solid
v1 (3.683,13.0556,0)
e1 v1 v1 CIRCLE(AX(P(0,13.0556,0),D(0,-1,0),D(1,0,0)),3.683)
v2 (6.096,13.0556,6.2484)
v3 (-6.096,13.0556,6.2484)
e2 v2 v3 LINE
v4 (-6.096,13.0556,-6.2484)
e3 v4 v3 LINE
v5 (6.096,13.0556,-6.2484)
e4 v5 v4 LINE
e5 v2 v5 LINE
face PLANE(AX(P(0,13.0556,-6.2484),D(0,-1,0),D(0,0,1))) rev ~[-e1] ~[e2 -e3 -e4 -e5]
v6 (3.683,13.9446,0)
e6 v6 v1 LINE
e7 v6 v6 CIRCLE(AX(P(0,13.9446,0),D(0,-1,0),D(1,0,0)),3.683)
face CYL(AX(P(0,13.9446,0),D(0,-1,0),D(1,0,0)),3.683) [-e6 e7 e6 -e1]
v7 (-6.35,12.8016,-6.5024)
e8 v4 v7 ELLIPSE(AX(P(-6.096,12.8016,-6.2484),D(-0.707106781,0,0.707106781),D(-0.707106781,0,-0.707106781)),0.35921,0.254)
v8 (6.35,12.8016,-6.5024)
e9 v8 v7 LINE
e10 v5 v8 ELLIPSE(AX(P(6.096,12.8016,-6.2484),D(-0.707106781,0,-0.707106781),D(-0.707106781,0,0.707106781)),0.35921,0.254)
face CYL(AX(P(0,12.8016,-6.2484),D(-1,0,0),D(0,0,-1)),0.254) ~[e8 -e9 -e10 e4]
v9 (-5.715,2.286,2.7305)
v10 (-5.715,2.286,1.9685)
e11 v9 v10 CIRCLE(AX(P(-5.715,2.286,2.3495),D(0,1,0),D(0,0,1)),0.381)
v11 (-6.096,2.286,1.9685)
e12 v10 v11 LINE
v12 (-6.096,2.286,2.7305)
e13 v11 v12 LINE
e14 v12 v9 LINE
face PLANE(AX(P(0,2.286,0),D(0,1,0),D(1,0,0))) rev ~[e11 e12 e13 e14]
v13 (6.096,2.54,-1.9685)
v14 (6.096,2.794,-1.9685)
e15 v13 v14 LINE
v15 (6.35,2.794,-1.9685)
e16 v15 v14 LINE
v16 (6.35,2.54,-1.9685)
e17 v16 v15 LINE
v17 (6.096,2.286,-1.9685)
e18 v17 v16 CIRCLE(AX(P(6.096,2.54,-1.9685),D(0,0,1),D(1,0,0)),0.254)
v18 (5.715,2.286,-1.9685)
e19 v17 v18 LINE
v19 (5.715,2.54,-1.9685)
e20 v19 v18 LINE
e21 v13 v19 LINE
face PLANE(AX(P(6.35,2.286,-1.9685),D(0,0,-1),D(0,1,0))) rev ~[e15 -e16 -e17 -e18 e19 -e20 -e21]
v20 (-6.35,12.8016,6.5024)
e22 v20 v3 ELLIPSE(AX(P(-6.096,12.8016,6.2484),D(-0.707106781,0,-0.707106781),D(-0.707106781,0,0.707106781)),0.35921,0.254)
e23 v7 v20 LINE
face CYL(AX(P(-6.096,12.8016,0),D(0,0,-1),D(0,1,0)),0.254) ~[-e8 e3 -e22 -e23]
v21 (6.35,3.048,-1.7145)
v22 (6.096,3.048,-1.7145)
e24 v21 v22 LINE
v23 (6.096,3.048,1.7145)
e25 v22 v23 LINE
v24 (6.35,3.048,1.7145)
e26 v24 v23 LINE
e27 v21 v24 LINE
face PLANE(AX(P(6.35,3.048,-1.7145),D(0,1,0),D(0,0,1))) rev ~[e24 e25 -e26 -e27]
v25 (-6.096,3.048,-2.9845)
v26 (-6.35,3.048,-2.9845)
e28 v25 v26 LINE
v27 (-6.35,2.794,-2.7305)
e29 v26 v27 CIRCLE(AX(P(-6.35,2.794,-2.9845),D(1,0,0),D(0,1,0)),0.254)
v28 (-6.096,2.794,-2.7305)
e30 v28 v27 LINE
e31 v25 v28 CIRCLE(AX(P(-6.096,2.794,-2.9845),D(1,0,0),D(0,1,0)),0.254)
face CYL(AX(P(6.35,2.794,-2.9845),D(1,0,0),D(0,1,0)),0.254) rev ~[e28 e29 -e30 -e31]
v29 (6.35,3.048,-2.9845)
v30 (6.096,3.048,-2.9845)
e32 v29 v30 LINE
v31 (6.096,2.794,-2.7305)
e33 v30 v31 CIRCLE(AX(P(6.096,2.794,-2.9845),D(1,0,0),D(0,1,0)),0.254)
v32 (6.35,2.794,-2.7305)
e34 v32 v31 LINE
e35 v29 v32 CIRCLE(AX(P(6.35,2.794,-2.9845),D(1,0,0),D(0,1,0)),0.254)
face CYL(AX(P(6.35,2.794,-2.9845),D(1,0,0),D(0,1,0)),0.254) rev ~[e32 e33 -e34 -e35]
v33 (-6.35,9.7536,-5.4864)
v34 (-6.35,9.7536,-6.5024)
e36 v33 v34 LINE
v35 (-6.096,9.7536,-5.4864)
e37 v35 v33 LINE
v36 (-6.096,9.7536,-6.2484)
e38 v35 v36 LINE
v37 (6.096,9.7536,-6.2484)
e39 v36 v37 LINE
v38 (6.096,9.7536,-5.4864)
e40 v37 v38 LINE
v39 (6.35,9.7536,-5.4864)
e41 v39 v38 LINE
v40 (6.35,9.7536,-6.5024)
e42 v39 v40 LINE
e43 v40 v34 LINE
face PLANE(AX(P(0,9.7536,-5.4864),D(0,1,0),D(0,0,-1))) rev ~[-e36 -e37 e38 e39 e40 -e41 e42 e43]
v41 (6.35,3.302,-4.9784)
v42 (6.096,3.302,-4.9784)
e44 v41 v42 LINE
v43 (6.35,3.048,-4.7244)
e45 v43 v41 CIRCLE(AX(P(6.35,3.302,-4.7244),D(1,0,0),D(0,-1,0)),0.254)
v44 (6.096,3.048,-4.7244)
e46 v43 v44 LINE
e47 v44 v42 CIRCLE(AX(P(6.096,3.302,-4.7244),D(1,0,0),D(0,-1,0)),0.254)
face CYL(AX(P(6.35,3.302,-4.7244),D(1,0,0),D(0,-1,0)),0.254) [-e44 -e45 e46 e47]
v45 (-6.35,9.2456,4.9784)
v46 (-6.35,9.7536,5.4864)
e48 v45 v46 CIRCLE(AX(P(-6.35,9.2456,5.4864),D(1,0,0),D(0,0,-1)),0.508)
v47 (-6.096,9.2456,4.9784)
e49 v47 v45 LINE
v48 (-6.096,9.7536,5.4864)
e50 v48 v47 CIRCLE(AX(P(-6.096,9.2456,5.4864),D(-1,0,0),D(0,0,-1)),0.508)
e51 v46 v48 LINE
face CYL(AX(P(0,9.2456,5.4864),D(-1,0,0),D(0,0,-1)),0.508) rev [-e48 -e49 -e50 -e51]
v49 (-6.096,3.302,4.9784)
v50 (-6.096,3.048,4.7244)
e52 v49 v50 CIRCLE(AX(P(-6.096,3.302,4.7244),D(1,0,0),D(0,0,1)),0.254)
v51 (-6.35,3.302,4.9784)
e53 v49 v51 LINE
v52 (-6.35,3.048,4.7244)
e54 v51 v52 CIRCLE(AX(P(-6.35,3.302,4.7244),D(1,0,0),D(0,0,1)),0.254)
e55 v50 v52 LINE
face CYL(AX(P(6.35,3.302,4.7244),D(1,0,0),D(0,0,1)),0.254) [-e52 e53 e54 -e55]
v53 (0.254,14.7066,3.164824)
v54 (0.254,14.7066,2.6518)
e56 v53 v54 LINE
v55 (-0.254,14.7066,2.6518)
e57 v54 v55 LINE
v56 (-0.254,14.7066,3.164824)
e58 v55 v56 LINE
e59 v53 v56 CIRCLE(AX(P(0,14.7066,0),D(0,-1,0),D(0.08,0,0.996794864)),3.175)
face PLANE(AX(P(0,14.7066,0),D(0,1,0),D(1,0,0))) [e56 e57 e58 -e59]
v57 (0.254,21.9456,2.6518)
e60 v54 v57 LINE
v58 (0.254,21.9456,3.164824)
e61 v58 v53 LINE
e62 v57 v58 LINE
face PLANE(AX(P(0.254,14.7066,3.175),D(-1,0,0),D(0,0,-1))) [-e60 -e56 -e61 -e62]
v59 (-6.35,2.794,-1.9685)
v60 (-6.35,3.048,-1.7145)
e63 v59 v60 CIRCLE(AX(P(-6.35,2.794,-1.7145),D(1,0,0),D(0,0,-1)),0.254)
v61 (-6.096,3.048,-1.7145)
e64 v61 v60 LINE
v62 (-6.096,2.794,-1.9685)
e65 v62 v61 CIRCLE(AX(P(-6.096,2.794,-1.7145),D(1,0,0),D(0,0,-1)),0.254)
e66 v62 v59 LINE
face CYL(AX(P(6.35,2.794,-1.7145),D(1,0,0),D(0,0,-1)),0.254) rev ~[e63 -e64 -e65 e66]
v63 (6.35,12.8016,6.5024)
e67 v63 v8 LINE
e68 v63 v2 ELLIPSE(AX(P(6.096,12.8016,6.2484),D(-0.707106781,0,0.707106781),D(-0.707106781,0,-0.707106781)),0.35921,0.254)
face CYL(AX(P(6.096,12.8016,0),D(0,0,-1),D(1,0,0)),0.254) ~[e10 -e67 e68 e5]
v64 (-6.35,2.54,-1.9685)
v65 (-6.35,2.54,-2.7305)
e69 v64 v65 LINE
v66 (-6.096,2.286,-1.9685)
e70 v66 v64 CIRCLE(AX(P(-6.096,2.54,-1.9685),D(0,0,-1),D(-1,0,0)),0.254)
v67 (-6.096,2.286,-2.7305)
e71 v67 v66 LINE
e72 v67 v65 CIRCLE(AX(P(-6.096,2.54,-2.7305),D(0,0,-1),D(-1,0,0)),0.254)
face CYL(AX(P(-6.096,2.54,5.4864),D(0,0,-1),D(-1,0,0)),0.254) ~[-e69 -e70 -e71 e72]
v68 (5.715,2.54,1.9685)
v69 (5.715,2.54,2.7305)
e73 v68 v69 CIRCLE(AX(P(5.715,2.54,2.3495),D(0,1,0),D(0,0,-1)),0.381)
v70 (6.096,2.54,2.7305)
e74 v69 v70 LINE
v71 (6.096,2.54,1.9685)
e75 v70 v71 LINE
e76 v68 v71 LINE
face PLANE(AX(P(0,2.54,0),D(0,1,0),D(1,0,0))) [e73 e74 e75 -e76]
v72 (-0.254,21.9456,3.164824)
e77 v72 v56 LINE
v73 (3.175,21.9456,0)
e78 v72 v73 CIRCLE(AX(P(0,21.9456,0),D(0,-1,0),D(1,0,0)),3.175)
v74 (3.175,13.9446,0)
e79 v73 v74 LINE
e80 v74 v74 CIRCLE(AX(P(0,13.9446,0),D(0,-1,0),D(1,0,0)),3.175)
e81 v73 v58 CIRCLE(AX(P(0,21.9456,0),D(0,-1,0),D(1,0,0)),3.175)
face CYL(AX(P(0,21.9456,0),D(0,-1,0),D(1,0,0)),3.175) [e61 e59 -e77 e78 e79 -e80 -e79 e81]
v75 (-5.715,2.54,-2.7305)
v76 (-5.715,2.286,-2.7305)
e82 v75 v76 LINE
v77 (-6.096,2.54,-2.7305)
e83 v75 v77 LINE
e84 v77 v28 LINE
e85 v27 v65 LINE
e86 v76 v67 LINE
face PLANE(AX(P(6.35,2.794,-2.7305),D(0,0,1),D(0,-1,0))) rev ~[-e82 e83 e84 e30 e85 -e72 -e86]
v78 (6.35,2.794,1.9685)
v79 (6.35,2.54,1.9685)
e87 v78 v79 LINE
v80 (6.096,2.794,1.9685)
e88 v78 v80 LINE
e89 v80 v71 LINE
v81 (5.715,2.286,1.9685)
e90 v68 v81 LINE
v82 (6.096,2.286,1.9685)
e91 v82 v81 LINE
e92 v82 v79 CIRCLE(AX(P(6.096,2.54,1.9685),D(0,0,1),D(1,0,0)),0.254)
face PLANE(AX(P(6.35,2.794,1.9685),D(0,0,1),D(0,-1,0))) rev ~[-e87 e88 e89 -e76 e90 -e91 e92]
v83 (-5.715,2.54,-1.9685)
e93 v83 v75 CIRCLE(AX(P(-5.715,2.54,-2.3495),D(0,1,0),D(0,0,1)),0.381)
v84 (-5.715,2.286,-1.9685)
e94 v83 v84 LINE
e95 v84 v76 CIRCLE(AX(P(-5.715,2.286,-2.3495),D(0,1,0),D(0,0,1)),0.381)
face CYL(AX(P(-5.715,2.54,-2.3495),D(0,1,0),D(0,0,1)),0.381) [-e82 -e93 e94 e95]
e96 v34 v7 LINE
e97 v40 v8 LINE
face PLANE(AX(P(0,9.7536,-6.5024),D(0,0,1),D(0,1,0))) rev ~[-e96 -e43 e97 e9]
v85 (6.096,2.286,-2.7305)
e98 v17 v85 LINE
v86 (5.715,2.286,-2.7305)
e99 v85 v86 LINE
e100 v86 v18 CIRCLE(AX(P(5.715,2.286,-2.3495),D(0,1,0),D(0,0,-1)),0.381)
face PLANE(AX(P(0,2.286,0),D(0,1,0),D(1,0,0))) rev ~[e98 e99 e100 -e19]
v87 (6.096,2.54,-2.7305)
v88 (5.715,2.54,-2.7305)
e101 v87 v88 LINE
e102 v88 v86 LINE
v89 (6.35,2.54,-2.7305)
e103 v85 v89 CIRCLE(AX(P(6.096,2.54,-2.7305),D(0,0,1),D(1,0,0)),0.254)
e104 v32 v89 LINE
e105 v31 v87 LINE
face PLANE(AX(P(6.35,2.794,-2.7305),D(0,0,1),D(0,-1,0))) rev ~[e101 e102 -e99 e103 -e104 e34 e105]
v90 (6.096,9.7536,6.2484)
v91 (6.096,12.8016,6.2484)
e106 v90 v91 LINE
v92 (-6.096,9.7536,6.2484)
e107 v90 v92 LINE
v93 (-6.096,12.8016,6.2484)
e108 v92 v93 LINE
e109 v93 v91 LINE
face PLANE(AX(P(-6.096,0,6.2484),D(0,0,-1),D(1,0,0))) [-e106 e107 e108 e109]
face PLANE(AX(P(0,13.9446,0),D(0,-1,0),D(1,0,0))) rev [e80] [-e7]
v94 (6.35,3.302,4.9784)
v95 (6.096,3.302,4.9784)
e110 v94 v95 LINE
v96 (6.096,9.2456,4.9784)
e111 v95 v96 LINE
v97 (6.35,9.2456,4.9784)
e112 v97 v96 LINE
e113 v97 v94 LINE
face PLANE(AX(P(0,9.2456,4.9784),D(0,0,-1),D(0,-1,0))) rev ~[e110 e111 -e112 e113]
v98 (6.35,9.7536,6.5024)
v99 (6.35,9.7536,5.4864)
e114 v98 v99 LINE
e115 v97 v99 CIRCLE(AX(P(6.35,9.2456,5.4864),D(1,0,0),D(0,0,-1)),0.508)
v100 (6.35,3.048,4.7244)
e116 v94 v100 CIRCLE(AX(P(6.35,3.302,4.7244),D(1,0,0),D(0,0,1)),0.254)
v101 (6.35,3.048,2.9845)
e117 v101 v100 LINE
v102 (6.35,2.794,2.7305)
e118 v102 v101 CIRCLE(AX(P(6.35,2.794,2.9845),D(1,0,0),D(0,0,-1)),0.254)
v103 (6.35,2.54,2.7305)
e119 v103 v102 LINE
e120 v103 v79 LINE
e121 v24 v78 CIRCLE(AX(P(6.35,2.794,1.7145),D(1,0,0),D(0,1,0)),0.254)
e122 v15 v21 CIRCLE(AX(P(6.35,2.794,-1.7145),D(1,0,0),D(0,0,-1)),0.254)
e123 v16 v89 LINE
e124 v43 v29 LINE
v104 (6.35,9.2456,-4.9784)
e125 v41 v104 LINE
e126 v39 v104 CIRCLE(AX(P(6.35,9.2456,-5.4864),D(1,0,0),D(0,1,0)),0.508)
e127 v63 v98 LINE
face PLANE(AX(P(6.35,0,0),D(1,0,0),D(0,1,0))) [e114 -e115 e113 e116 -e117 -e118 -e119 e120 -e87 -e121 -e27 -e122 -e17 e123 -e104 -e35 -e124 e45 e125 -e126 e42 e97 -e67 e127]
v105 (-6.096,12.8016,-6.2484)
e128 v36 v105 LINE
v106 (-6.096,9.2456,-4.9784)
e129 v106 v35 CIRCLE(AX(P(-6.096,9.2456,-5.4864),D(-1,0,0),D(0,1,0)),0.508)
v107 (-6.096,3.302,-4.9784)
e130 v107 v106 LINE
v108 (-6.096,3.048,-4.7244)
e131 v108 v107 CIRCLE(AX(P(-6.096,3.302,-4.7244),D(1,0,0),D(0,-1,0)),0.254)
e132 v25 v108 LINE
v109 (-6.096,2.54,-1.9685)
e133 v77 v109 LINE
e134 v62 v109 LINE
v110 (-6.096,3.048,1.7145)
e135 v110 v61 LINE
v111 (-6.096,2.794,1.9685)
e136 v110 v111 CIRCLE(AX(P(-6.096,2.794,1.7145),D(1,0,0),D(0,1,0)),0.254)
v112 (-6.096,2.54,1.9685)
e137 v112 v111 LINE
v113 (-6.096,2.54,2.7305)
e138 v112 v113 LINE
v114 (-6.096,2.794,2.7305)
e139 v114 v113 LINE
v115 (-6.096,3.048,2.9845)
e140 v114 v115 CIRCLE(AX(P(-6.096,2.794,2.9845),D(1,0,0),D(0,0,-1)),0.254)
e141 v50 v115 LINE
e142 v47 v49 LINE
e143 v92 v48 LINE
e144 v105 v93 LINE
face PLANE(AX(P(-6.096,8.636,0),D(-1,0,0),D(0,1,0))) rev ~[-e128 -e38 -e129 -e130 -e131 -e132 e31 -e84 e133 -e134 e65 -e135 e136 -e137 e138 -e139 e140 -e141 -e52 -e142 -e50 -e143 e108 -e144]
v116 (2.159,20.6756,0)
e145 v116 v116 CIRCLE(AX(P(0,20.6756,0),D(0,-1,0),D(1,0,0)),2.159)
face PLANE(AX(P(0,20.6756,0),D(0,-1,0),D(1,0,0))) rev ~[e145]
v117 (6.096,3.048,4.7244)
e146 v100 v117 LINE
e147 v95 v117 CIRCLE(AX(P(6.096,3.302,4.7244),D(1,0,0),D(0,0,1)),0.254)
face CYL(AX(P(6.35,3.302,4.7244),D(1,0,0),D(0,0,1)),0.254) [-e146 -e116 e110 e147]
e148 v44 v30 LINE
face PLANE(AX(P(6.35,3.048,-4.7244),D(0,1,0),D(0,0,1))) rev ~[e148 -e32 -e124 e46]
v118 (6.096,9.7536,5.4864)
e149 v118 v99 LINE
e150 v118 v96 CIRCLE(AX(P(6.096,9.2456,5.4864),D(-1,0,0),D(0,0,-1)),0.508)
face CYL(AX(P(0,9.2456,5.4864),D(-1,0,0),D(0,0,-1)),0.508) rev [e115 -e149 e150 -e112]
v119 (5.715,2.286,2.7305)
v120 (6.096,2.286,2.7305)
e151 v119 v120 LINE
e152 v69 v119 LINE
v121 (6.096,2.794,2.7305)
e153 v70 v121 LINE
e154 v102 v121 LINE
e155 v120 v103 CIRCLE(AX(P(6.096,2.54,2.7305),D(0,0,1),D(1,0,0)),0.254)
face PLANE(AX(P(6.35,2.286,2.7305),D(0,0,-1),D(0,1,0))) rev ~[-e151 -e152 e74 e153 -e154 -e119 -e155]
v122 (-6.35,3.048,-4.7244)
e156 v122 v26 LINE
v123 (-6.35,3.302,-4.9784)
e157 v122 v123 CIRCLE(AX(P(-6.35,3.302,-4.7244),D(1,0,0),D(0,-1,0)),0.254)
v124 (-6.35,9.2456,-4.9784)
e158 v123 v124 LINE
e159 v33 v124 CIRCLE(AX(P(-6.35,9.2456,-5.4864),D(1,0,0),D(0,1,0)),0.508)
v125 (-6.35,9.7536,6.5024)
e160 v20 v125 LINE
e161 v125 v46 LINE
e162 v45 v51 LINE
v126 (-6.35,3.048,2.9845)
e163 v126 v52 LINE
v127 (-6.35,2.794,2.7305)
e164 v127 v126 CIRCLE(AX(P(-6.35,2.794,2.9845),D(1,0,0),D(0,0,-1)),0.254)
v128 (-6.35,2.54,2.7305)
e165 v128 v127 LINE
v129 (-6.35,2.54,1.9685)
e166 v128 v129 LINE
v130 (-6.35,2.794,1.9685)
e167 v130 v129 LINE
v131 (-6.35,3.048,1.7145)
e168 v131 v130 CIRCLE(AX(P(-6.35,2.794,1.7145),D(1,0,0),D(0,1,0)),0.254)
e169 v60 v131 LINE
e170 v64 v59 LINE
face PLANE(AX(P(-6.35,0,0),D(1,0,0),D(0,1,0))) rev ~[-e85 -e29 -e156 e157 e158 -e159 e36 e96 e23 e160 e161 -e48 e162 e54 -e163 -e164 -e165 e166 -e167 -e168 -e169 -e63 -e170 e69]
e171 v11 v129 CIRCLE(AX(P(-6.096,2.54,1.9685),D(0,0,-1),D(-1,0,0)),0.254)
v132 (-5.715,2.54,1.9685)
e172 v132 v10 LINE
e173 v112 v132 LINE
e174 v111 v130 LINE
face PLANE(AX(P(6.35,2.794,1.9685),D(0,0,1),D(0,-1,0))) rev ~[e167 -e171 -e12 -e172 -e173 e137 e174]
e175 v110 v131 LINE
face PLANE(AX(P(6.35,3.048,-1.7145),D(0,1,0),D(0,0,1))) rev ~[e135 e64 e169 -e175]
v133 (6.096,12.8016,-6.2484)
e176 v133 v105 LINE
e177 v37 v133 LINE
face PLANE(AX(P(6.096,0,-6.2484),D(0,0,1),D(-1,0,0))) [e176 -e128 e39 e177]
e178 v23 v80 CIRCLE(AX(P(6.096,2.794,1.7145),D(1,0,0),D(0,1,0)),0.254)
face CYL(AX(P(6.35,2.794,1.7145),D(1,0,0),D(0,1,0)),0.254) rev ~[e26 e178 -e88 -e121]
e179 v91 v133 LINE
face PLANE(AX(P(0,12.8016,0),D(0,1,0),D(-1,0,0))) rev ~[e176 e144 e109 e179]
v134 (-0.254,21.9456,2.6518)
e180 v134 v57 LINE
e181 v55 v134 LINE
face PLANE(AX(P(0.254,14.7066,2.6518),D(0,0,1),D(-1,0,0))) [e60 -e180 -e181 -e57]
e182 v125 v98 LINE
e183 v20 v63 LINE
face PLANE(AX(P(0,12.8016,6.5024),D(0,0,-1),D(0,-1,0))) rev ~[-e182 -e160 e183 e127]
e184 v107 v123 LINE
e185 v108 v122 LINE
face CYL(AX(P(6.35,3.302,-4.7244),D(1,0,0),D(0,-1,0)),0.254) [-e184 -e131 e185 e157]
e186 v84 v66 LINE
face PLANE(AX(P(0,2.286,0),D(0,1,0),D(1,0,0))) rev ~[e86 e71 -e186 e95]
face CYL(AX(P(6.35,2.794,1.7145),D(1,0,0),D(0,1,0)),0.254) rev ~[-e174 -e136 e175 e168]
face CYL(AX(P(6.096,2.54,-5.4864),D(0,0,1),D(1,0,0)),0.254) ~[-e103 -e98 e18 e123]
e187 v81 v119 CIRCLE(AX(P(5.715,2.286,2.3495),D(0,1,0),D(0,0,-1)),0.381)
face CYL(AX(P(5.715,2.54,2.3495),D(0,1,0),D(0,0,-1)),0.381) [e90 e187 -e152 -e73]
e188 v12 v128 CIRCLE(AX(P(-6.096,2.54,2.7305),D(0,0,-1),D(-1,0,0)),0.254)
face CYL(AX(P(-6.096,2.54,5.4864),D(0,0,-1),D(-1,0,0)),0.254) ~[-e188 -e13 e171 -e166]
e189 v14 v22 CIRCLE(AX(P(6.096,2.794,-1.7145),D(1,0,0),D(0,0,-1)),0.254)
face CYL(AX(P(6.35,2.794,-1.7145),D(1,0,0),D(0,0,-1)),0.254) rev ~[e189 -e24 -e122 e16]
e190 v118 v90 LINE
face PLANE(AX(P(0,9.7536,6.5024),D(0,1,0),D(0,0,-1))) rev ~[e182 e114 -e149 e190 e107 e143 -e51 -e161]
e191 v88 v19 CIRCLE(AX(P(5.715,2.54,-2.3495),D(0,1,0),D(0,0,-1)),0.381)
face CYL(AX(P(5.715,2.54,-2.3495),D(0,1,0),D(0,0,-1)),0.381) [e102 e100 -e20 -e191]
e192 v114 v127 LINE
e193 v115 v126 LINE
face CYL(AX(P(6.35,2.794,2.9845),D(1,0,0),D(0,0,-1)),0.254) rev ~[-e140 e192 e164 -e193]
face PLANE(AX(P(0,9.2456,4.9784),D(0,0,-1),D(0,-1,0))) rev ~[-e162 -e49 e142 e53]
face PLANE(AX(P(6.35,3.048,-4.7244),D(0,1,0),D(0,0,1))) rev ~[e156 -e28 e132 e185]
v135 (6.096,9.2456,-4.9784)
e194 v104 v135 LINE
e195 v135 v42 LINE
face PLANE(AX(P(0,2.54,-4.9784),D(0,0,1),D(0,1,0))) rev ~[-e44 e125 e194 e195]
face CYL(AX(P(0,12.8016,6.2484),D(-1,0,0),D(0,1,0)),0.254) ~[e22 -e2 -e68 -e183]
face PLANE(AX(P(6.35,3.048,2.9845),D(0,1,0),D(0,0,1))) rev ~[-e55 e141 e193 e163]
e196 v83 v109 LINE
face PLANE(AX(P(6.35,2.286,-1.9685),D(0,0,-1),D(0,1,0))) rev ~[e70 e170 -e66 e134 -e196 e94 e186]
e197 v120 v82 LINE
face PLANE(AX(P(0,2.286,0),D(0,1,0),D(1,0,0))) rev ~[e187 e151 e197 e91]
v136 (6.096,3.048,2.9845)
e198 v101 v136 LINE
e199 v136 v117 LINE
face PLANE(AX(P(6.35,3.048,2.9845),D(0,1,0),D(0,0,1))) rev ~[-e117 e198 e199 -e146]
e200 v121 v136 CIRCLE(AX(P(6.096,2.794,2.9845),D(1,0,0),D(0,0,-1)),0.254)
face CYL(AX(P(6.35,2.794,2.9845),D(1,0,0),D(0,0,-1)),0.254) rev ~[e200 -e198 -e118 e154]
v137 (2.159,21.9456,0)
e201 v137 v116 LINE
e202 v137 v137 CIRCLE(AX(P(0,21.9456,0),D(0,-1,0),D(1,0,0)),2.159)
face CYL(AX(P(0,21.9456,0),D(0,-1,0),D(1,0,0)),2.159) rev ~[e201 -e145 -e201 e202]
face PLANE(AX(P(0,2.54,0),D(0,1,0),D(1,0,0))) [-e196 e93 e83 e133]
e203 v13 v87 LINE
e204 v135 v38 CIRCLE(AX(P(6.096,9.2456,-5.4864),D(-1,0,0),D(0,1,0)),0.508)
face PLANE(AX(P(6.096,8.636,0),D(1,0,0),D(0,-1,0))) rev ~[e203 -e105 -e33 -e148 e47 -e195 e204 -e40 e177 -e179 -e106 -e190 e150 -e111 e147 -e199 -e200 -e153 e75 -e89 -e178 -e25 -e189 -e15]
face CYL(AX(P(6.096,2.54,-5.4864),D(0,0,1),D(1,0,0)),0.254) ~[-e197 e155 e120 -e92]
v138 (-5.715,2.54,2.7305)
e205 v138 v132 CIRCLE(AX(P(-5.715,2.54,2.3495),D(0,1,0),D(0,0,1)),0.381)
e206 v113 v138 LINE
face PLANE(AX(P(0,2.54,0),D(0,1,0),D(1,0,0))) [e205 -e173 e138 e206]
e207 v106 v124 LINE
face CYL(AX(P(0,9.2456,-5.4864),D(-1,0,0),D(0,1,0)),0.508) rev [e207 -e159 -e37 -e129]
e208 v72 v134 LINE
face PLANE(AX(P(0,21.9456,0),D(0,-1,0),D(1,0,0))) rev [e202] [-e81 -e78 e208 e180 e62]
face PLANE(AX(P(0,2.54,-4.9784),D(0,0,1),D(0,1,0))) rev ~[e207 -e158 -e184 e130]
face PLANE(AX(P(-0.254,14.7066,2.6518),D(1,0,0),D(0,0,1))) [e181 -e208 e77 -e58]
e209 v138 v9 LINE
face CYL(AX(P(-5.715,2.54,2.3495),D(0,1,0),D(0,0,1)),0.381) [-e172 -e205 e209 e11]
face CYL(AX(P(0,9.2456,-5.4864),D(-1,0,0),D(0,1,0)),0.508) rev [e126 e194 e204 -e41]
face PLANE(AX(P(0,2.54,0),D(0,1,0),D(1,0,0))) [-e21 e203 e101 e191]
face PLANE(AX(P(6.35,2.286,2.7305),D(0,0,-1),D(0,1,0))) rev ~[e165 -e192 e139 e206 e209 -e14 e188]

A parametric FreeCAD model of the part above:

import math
import FreeCAD as App
import Part
import Sketcher
from FreeCAD import Vector
Q = App.Units.Quantity


def add_polygon(sketch, points):
    """Adds a closed chain of lines whose ends are joined by coincident constraints."""
    first, n = sketch.GeometryCount, len(points)
    for a, b in zip(points, points[1:] + points[:1]):
        sketch.addGeometry(Part.LineSegment(App.Vector(*a, 0), App.Vector(*b, 0)), False)
    for i in range(n):
        sketch.addConstraint(Sketcher.Constraint("Coincident", first + i, 2, first + (i + 1) % n, 1))

doc = App.newDocument("Part")
body = doc.addObject("PartDesign::Body", "Body")

# Sketch on YZ plane
sketch1 = body.newObject("Sketcher::SketchObject", "Sketch")
sketch1.AttachmentSupport = (doc.getObject("YZ_Plane"), [""])
sketch1.MapMode = "FlatFace"
sketch1.addGeometry(Part.ArcOfCircle(Part.Circle(Vector(12.8, 6.25, 0), Vector(0, 0, 1), 0.25), math.radians(0), math.radians(90)), False)
sketch1.addGeometry(Part.LineSegment(Vector(12.8, 6.5, 0), Vector(9.75, 6.5, 0)), False)
sketch1.addGeometry(Part.LineSegment(Vector(9.75, 6.5, 0), Vector(9.75, 5.49, 0)), False)
sketch1.addGeometry(Part.ArcOfCircle(Part.Circle(Vector(9.25, 5.49, 0), Vector(0, 0, 1), 0.51), math.radians(-90), math.radians(0)), False)
sketch1.addGeometry(Part.LineSegment(Vector(9.25, 4.98, 0), Vector(2.54, 4.98, 0)), False)
sketch1.addGeometry(Part.LineSegment(Vector(2.54, 4.98, 0), Vector(2.54, -4.98, 0)), False)
sketch1.addGeometry(Part.LineSegment(Vector(2.54, -4.98, 0), Vector(9.25, -4.98, 0)), False)
sketch1.addGeometry(Part.ArcOfCircle(Part.Circle(Vector(9.25, -5.49, 0), Vector(0, 0, 1), 0.51), math.radians(0), math.radians(90)), False)
sketch1.addGeometry(Part.LineSegment(Vector(9.75, -5.49, 0), Vector(9.75, -6.5, 0)), False)
sketch1.addGeometry(Part.LineSegment(Vector(9.75, -6.5, 0), Vector(12.8, -6.5, 0)), False)
sketch1.addGeometry(Part.ArcOfCircle(Part.Circle(Vector(12.8, -6.25, 0), Vector(0, 0, 1), 0.25), math.radians(-90), math.radians(0)), False)
sketch1.addGeometry(Part.LineSegment(Vector(13.06, -6.25, 0), Vector(13.06, 6.25, 0)), False)
sketch1.addConstraint(Sketcher.Constraint("Tangent", 0, 2, 1, 1))
sketch1.addConstraint(Sketcher.Constraint("Coincident", 1, 2, 2, 1))
sketch1.addConstraint(Sketcher.Constraint("Tangent", 2, 2, 3, 2))
sketch1.addConstraint(Sketcher.Constraint("Tangent", 3, 1, 4, 1))
sketch1.addConstraint(Sketcher.Constraint("Coincident", 4, 2, 5, 1))
sketch1.addConstraint(Sketcher.Constraint("Coincident", 5, 2, 6, 1))
sketch1.addConstraint(Sketcher.Constraint("Tangent", 6, 2, 7, 2))
sketch1.addConstraint(Sketcher.Constraint("Tangent", 7, 1, 8, 1))
sketch1.addConstraint(Sketcher.Constraint("Coincident", 8, 2, 9, 1))
sketch1.addConstraint(Sketcher.Constraint("Tangent", 9, 2, 10, 1))
sketch1.addConstraint(Sketcher.Constraint("Tangent", 10, 2, 11, 1))
sketch1.addConstraint(Sketcher.Constraint("Tangent", 11, 2, 0, 1))
sketch1.addConstraint(Sketcher.Constraint("Horizontal", 1))
sketch1.addConstraint(Sketcher.Constraint("Vertical", 2))
sketch1.addConstraint(Sketcher.Constraint("Horizontal", 4))
sketch1.addConstraint(Sketcher.Constraint("Vertical", 5))
sketch1.addConstraint(Sketcher.Constraint("Horizontal", 6))
sketch1.addConstraint(Sketcher.Constraint("Vertical", 8))
sketch1.addConstraint(Sketcher.Constraint("Horizontal", 9))
sketch1.addConstraint(Sketcher.Constraint("Vertical", 11))
sketch1.addConstraint(Sketcher.Constraint("Equal", 3, 7))
sketch1.addConstraint(Sketcher.Constraint("Equal", 0, 10))
sketch1.addConstraint(Sketcher.Constraint("Symmetric", 3, 3, 7, 3, -1))
sketch1.addConstraint(Sketcher.Constraint("Equal", 2, 8))
sketch1.addConstraint(Sketcher.Constraint("Radius", 0, Q("0.01 in")))
sketch1.addConstraint(Sketcher.Constraint("Radius", 3, Q("0.02 in")))
sketch1.addConstraint(Sketcher.Constraint("DistanceX", 1, 2, 1, 1, Q("0.12 in")))
sketch1.addConstraint(Sketcher.Constraint("DistanceY", 2, 2, 2, 1, Q("0.04 in")))
sketch1.addConstraint(Sketcher.Constraint("DistanceX", -1, 1, 4, 2, Q("0.1 in")))
sketch1.addConstraint(Sketcher.Constraint("DistanceX", 4, 2, 4, 1, Q("0.264 in")))
sketch1.addConstraint(Sketcher.Constraint("DistanceY", 5, 2, 5, 1, Q("0.392 in")))
pad1 = body.newObject("PartDesign::Pad", "Pad")
pad1.Profile = sketch1
pad1.Length = Q("0.5 in")
pad1.Midplane = True

# Sketch on XZ plane
sketch2 = body.newObject("Sketcher::SketchObject", "Sketch001")
sketch2.AttachmentSupport = (doc.getObject("XZ_Plane"), [""])
sketch2.MapMode = "FlatFace"
add_polygon(sketch2, [(-6, -6), (-6, 6), (6, 6), (6, -6)])  # lines 0-3
sketch2.addConstraint(Sketcher.Constraint("Vertical", 0))
sketch2.addConstraint(Sketcher.Constraint("Horizontal", 1))
sketch2.addConstraint(Sketcher.Constraint("Vertical", 2))
sketch2.addConstraint(Sketcher.Constraint("Horizontal", 3))
sketch2.addConstraint(Sketcher.Constraint("Symmetric", 0, 2, 2, 2, -1, 1))
sketch2.addConstraint(Sketcher.Constraint("DistanceX", 1, 1, 1, 2, Q("0.48 in")))
sketch2.addConstraint(Sketcher.Constraint("DistanceY", 0, 1, 0, 2, Q("0.492 in")))
pocket1 = body.newObject("PartDesign::Pocket", "Pocket")
pocket1.Profile = sketch2
pocket1.Length = Q("0.504 in")

# Sketch on XY plane
sketch3 = body.newObject("Sketcher::SketchObject", "Sketch002")
sketch3.AttachmentSupport = (doc.getObject("XY_Plane"), [""])
sketch3.MapMode = "FlatFace"
sketch3.addGeometry(Part.LineSegment(Vector(6.35, 15.24, 0), Vector(-6.35, 15.24, 0)), False)
sketch3.addGeometry(Part.LineSegment(Vector(-6.35, 15.24, 0), Vector(-6.35, 12.8, 0)), False)
sketch3.addGeometry(Part.ArcOfCircle(Part.Circle(Vector(-6.1, 12.8, 0), Vector(0, 0, 1), 0.25), math.radians(90), math.radians(180)), False)
sketch3.addGeometry(Part.LineSegment(Vector(-6.1, 13.06, 0), Vector(6.1, 13.06, 0)), False)
sketch3.addGeometry(Part.ArcOfCircle(Part.Circle(Vector(6.1, 12.8, 0), Vector(0, 0, 1), 0.25), math.radians(0), math.radians(90)), False)
sketch3.addGeometry(Part.LineSegment(Vector(6.35, 12.8, 0), Vector(6.35, 15.24, 0)), False)
sketch3.addConstraint(Sketcher.Constraint("Coincident", 0, 2, 1, 1))
sketch3.addConstraint(Sketcher.Constraint("Tangent", 1, 2, 2, 2))
sketch3.addConstraint(Sketcher.Constraint("Tangent", 2, 1, 3, 1))
sketch3.addConstraint(Sketcher.Constraint("Tangent", 3, 2, 4, 2))
sketch3.addConstraint(Sketcher.Constraint("Tangent", 4, 1, 5, 1))
sketch3.addConstraint(Sketcher.Constraint("Coincident", 5, 2, 0, 1))
sketch3.addConstraint(Sketcher.Constraint("Horizontal", 0))
sketch3.addConstraint(Sketcher.Constraint("Vertical", 1))
sketch3.addConstraint(Sketcher.Constraint("Horizontal", 3))
sketch3.addConstraint(Sketcher.Constraint("Vertical", 5))
sketch3.addConstraint(Sketcher.Constraint("Equal", 2, 4))
sketch3.addConstraint(Sketcher.Constraint("Radius", 2, Q("0.01 in")))
sketch3.addConstraint(Sketcher.Constraint("DistanceX", 0, 2, 0, 1, Q("0.5 in")))
sketch3.addConstraint(Sketcher.Constraint("DistanceY", -1, 1, 0, 2, Q("0.6 in")))
sketch3.addConstraint(Sketcher.Constraint("DistanceY", 1, 2, 1, 1, Q("0.096 in")))
sketch3.addConstraint(Sketcher.Constraint("DistanceX", 2, 3, -1, 1, Q("0.24 in")))
pocket2 = body.newObject("PartDesign::Pocket", "Pocket001")
pocket2.Profile = sketch3
pocket2.Length = Q("1.008 in")
pocket2.Midplane = True

# Sketch on XZ plane
sketch4 = body.newObject("Sketcher::SketchObject", "Sketch003")
sketch4.AttachmentSupport = (doc.getObject("XZ_Plane"), [""])
sketch4.MapMode = "FlatFace"
sketch4.AttachmentOffset = App.Placement(Vector(0, 0, -0.1 * 25.4), App.Rotation())
add_polygon(sketch4, [(-6.1, 5.49), (-6.1, -5.49), (-6.35, -5.49), (-6.35, 5.49)])  # lines 0-3
sketch4.addGeometry(Part.LineSegment(Vector(-6.1, -5.49, 0), Vector(-6.1, 5.49, 0)), True)  # axis
sketch4.addConstraint(Sketcher.Constraint("Vertical", 0))
sketch4.addConstraint(Sketcher.Constraint("Horizontal", 1))
sketch4.addConstraint(Sketcher.Constraint("Vertical", 2))
sketch4.addConstraint(Sketcher.Constraint("Horizontal", 3))
sketch4.addConstraint(Sketcher.Constraint("Vertical", 4))
sketch4.addConstraint(Sketcher.Constraint("Coincident", 4, 1, 0, 2))
sketch4.addConstraint(Sketcher.Constraint("Horizontal", 2, 2, 4, 2))
sketch4.addConstraint(Sketcher.Constraint("DistanceX", 1, 2, 1, 1, Q("0.01 in")))
sketch4.addConstraint(Sketcher.Constraint("DistanceY", 0, 2, 0, 1, Q("0.432 in")))
sketch4.addConstraint(Sketcher.Constraint("DistanceX", 0, 2, -1, 1, Q("0.24 in")))
sketch4.addConstraint(Sketcher.Constraint("DistanceY", 0, 2, -1, 1, Q("0.216 in")))
revolution = body.newObject("PartDesign::Revolution", "Revolution")
revolution.Profile = sketch4
revolution.ReferenceAxis = (sketch4, ["Axis0"])
revolution.Angle = 90

# Sketch on XZ plane
sketch5 = body.newObject("Sketcher::SketchObject", "Sketch004")
sketch5.AttachmentSupport = (doc.getObject("XZ_Plane"), [""])
sketch5.MapMode = "FlatFace"
sketch5.AttachmentOffset = App.Placement(Vector(0, 0, -0.1 * 25.4), App.Rotation())
add_polygon(sketch5, [(6.1, -5.49), (6.1, 5.49), (6.35, 5.49), (6.35, -5.49)])  # lines 0-3
sketch5.addGeometry(Part.LineSegment(Vector(6.1, 5.49, 0), Vector(6.1, -5.49, 0)), True)  # axis
sketch5.addConstraint(Sketcher.Constraint("Vertical", 0))
sketch5.addConstraint(Sketcher.Constraint("Horizontal", 1))
sketch5.addConstraint(Sketcher.Constraint("Vertical", 2))
sketch5.addConstraint(Sketcher.Constraint("Horizontal", 3))
sketch5.addConstraint(Sketcher.Constraint("Vertical", 4))
sketch5.addConstraint(Sketcher.Constraint("Coincident", 4, 1, 0, 2))
sketch5.addConstraint(Sketcher.Constraint("Horizontal", 2, 2, 4, 2))
sketch5.addConstraint(Sketcher.Constraint("DistanceX", 1, 1, 1, 2, Q("0.01 in")))
sketch5.addConstraint(Sketcher.Constraint("DistanceY", 0, 1, 0, 2, Q("0.432 in")))
sketch5.addConstraint(Sketcher.Constraint("DistanceX", -1, 1, 0, 2, Q("0.24 in")))
sketch5.addConstraint(Sketcher.Constraint("DistanceY", -1, 1, 0, 2, Q("0.216 in")))
revolution2 = body.newObject("PartDesign::Revolution", "Revolution001")
revolution2.Profile = sketch5
revolution2.ReferenceAxis = (sketch5, ["Axis0"])
revolution2.Angle = 90

# Sketch on XZ plane
sketch6 = body.newObject("Sketcher::SketchObject", "Sketch005")
sketch6.AttachmentSupport = (doc.getObject("XZ_Plane"), [""])
sketch6.MapMode = "FlatFace"
sketch6.AttachmentOffset = App.Placement(Vector(0, 0, -0.1 * 25.4), App.Rotation())
sketch6.addGeometry(Part.LineSegment(Vector(-5.71, -2.73, 0), Vector(-6.1, -2.73, 0)), False)
sketch6.addGeometry(Part.LineSegment(Vector(-6.1, -2.73, 0), Vector(-6.1, 2.73, 0)), False)
sketch6.addGeometry(Part.LineSegment(Vector(-6.1, 2.73, 0), Vector(-5.71, 2.73, 0)), False)
sketch6.addGeometry(Part.ArcOfCircle(Part.Circle(Vector(-5.71, 2.35, 0), Vector(0, 0, 1), 0.38), math.radians(-90), math.radians(90)), False)
sketch6.addGeometry(Part.LineSegment(Vector(-5.71, 1.97, 0), Vector(-5.71, -1.97, 0)), False)
sketch6.addGeometry(Part.ArcOfCircle(Part.Circle(Vector(-5.71, -2.35, 0), Vector(0, 0, 1), 0.38), math.radians(-90), math.radians(90)), False)
sketch6.addConstraint(Sketcher.Constraint("Coincident", 0, 2, 1, 1))
sketch6.addConstraint(Sketcher.Constraint("Coincident", 1, 2, 2, 1))
sketch6.addConstraint(Sketcher.Constraint("Tangent", 2, 2, 3, 2))
sketch6.addConstraint(Sketcher.Constraint("Coincident", 3, 1, 4, 1))
sketch6.addConstraint(Sketcher.Constraint("Coincident", 4, 2, 5, 2))
sketch6.addConstraint(Sketcher.Constraint("Tangent", 5, 1, 0, 1))
sketch6.addConstraint(Sketcher.Constraint("Horizontal", 0))
sketch6.addConstraint(Sketcher.Constraint("Vertical", 1))
sketch6.addConstraint(Sketcher.Constraint("Horizontal", 2))
sketch6.addConstraint(Sketcher.Constraint("Vertical", 4))
sketch6.addConstraint(Sketcher.Constraint("Equal", 3, 5))
sketch6.addConstraint(Sketcher.Constraint("Symmetric", 3, 3, 5, 3, -1))
sketch6.addConstraint(Sketcher.Constraint("Vertical", 2, 2, 3, 1))
sketch6.addConstraint(Sketcher.Constraint("Radius", 3, Q("0.015 in")))
sketch6.addConstraint(Sketcher.Constraint("DistanceY", 0, 2, 3, 3, Q("0.2 in")))
sketch6.addConstraint(Sketcher.Constraint("DistanceX", 0, 2, 0, 1, Q("0.015 in")))
sketch6.addConstraint(Sketcher.Constraint("DistanceX", 0, 2, -1, 1, Q("0.24 in")))
pad2 = body.newObject("PartDesign::Pad", "Pad001")
pad2.Profile = sketch6
pad2.Length = Q("0.01 in")

# Sketch on XZ plane
sketch7 = body.newObject("Sketcher::SketchObject", "Sketch006")
sketch7.AttachmentSupport = (doc.getObject("XZ_Plane"), [""])
sketch7.MapMode = "FlatFace"
sketch7.AttachmentOffset = App.Placement(Vector(0, 0, -0.1 * 25.4), App.Rotation())
sketch7.addGeometry(Part.LineSegment(Vector(6.1, -2.73, 0), Vector(5.71, -2.73, 0)), False)
sketch7.addGeometry(Part.ArcOfCircle(Part.Circle(Vector(5.71, -2.35, 0), Vector(0, 0, 1), 0.38), math.radians(90), math.radians(270)), False)
sketch7.addGeometry(Part.LineSegment(Vector(5.71, -1.97, 0), Vector(5.71, 1.97, 0)), False)
sketch7.addGeometry(Part.ArcOfCircle(Part.Circle(Vector(5.71, 2.35, 0), Vector(0, 0, 1), 0.38), math.radians(90), math.radians(270)), False)
sketch7.addGeometry(Part.LineSegment(Vector(5.71, 2.73, 0), Vector(6.1, 2.73, 0)), False)
sketch7.addGeometry(Part.LineSegment(Vector(6.1, 2.73, 0), Vector(6.1, -2.73, 0)), False)
sketch7.addConstraint(Sketcher.Constraint("Tangent", 0, 2, 1, 2))
sketch7.addConstraint(Sketcher.Constraint("Coincident", 1, 1, 2, 1))
sketch7.addConstraint(Sketcher.Constraint("Coincident", 2, 2, 3, 2))
sketch7.addConstraint(Sketcher.Constraint("Tangent", 3, 1, 4, 1))
sketch7.addConstraint(Sketcher.Constraint("Coincident", 4, 2, 5, 1))
sketch7.addConstraint(Sketcher.Constraint("Coincident", 5, 2, 0, 1))
sketch7.addConstraint(Sketcher.Constraint("Horizontal", 0))
sketch7.addConstraint(Sketcher.Constraint("Vertical", 2))
sketch7.addConstraint(Sketcher.Constraint("Horizontal", 4))
sketch7.addConstraint(Sketcher.Constraint("Vertical", 5))
sketch7.addConstraint(Sketcher.Constraint("Equal", 1, 3))
sketch7.addConstraint(Sketcher.Constraint("Symmetric", 1, 3, 3, 3, -1))
sketch7.addConstraint(Sketcher.Constraint("Vertical", 0, 2, 1, 1))
sketch7.addConstraint(Sketcher.Constraint("Radius", 1, Q("0.015 in")))
sketch7.addConstraint(Sketcher.Constraint("DistanceY", 0, 2, 3, 3, Q("0.2 in")))
sketch7.addConstraint(Sketcher.Constraint("DistanceX", 0, 2, 0, 1, Q("0.015 in")))
sketch7.addConstraint(Sketcher.Constraint("DistanceX", -1, 1, 4, 2, Q("0.24 in")))
pad3 = body.newObject("PartDesign::Pad", "Pad002")
pad3.Profile = sketch7
pad3.Length = Q("0.01 in")

# Sketch on YZ plane
sketch8 = body.newObject("Sketcher::SketchObject", "Sketch007")
sketch8.AttachmentSupport = (doc.getObject("YZ_Plane"), [""])
sketch8.MapMode = "FlatFace"
sketch8.AttachmentOffset = App.Placement(Vector(0, 0, 0.25 * 25.4), App.Rotation())
sketch8.addGeometry(Part.LineSegment(Vector(3.3, 7.19, 0), Vector(0, 7.19, 0)), False)
sketch8.addGeometry(Part.LineSegment(Vector(0, 7.19, 0), Vector(0, -7.75, 0)), False)
sketch8.addGeometry(Part.LineSegment(Vector(0, -7.75, 0), Vector(3.3, -7.75, 0)), False)
sketch8.addGeometry(Part.LineSegment(Vector(3.3, -7.75, 0), Vector(3.3, -4.98, 0)), False)
sketch8.addGeometry(Part.ArcOfCircle(Part.Circle(Vector(3.3, -4.72, 0), Vector(0, 0, 1), 0.25), math.radians(180), math.radians(270)), False)
sketch8.addGeometry(Part.LineSegment(Vector(3.05, -4.72, 0), Vector(3.05, -2.98, 0)), False)
sketch8.addGeometry(Part.ArcOfCircle(Part.Circle(Vector(2.79, -2.98, 0), Vector(0, 0, 1), 0.25), math.radians(0), math.radians(90)), False)
sketch8.addGeometry(Part.LineSegment(Vector(2.79, -2.73, 0), Vector(2.29, -2.73, 0)), False)
sketch8.addGeometry(Part.LineSegment(Vector(2.29, -2.73, 0), Vector(2.29, -1.97, 0)), False)
sketch8.addGeometry(Part.LineSegment(Vector(2.29, -1.97, 0), Vector(2.79, -1.97, 0)), False)
sketch8.addGeometry(Part.ArcOfCircle(Part.Circle(Vector(2.79, -1.71, 0), Vector(0, 0, 1), 0.25), math.radians(-90), math.radians(0)), False)
sketch8.addGeometry(Part.LineSegment(Vector(3.05, -1.71, 0), Vector(3.05, 1.71, 0)), False)
sketch8.addGeometry(Part.ArcOfCircle(Part.Circle(Vector(2.79, 1.71, 0), Vector(0, 0, 1), 0.25), math.radians(0), math.radians(90)), False)
sketch8.addGeometry(Part.LineSegment(Vector(2.79, 1.97, 0), Vector(2.29, 1.97, 0)), False)
sketch8.addGeometry(Part.LineSegment(Vector(2.29, 1.97, 0), Vector(2.29, 2.73, 0)), False)
sketch8.addGeometry(Part.LineSegment(Vector(2.29, 2.73, 0), Vector(2.79, 2.73, 0)), False)
sketch8.addGeometry(Part.ArcOfCircle(Part.Circle(Vector(2.79, 2.98, 0), Vector(0, 0, 1), 0.25), math.radians(-90), math.radians(0)), False)
sketch8.addGeometry(Part.LineSegment(Vector(3.05, 2.98, 0), Vector(3.05, 4.72, 0)), False)
sketch8.addGeometry(Part.ArcOfCircle(Part.Circle(Vector(3.3, 4.72, 0), Vector(0, 0, 1), 0.25), math.radians(90), math.radians(180)), False)
sketch8.addGeometry(Part.LineSegment(Vector(3.3, 4.98, 0), Vector(3.3, 7.19, 0)), False)
sketch8.addConstraint(Sketcher.Constraint("Coincident", 0, 2, 1, 1))
sketch8.addConstraint(Sketcher.Constraint("Coincident", 1, 2, 2, 1))
sketch8.addConstraint(Sketcher.Constraint("Coincident", 2, 2, 3, 1))
sketch8.addConstraint(Sketcher.Constraint("Coincident", 3, 2, 4, 2))
sketch8.addConstraint(Sketcher.Constraint("Tangent", 4, 1, 5, 1))
sketch8.addConstraint(Sketcher.Constraint("Tangent", 5, 2, 6, 1))
sketch8.addConstraint(Sketcher.Constraint("Tangent", 6, 2, 7, 1))
sketch8.addConstraint(Sketcher.Constraint("Coincident", 7, 2, 8, 1))
sketch8.addConstraint(Sketcher.Constraint("Coincident", 8, 2, 9, 1))
sketch8.addConstraint(Sketcher.Constraint("Tangent", 9, 2, 10, 1))
sketch8.addConstraint(Sketcher.Constraint("Tangent", 10, 2, 11, 1))
sketch8.addConstraint(Sketcher.Constraint("Tangent", 11, 2, 12, 1))
sketch8.addConstraint(Sketcher.Constraint("Tangent", 12, 2, 13, 1))
sketch8.addConstraint(Sketcher.Constraint("Coincident", 13, 2, 14, 1))
sketch8.addConstraint(Sketcher.Constraint("Coincident", 14, 2, 15, 1))
sketch8.addConstraint(Sketcher.Constraint("Tangent", 15, 2, 16, 1))
sketch8.addConstraint(Sketcher.Constraint("Tangent", 16, 2, 17, 1))
sketch8.addConstraint(Sketcher.Constraint("Tangent", 17, 2, 18, 2))
sketch8.addConstraint(Sketcher.Constraint("Coincident", 18, 1, 19, 1))
sketch8.addConstraint(Sketcher.Constraint("Coincident", 19, 2, 0, 1))
sketch8.addConstraint(Sketcher.Constraint("Horizontal", 0))
sketch8.addConstraint(Sketcher.Constraint("Vertical", 1))
sketch8.addConstraint(Sketcher.Constraint("Horizontal", 2))
sketch8.addConstraint(Sketcher.Constraint("Vertical", 3))
sketch8.addConstraint(Sketcher.Constraint("Vertical", 5))
sketch8.addConstraint(Sketcher.Constraint("Horizontal", 7))
sketch8.addConstraint(Sketcher.Constraint("Vertical", 8))
sketch8.addConstraint(Sketcher.Constraint("Horizontal", 9))
sketch8.addConstraint(Sketcher.Constraint("Vertical", 11))
sketch8.addConstraint(Sketcher.Constraint("Horizontal", 13))
sketch8.addConstraint(Sketcher.Constraint("Vertical", 14))
sketch8.addConstraint(Sketcher.Constraint("Horizontal", 15))
sketch8.addConstraint(Sketcher.Constraint("Vertical", 17))
sketch8.addConstraint(Sketcher.Constraint("Vertical", 19))
sketch8.addConstraint(Sketcher.Constraint("Equal", 4, 6))
sketch8.addConstraint(Sketcher.Constraint("Equal", 6, 10))
sketch8.addConstraint(Sketcher.Constraint("Equal", 10, 12))
sketch8.addConstraint(Sketcher.Constraint("Equal", 12, 16))
sketch8.addConstraint(Sketcher.Constraint("Equal", 16, 18))
sketch8.addConstraint(Sketcher.Constraint("Symmetric", 6, 3, 16, 3, -1))
sketch8.addConstraint(Sketcher.Constraint("Symmetric", 8, 2, 13, 2, -1))
sketch8.addConstraint(Sketcher.Constraint("Symmetric", 3, 2, 18, 1, -1))
sketch8.addConstraint(Sketcher.Constraint("PointOnObject", 0, 2, -2))
sketch8.addConstraint(Sketcher.Constraint("Vertical", 6, 3, 10, 3))
sketch8.addConstraint(Sketcher.Constraint("Vertical", 18, 3, 2, 2))
sketch8.addConstraint(Sketcher.Constraint("Radius", 4, Q("0.01 in")))
sketch8.addConstraint(Sketcher.Constraint("DistanceX", 0, 2, 0, 1, Q("0.13 in")))
sketch8.addConstraint(Sketcher.Constraint("DistanceX", 7, 2, 7, 1, Q("0.02 in")))
sketch8.addConstraint(Sketcher.Constraint("DistanceY", 8, 1, 8, 2, Q("0.03 in")))
sketch8.addConstraint(Sketcher.Constraint("DistanceY", 11, 1, 11, 2, Q("0.135 in")))
sketch8.addConstraint(Sketcher.Constraint("DistanceY", 3, 1, 3, 2, Q("0.1092 in")))
sketch8.addConstraint(Sketcher.Constraint("DistanceY", 5, 1, 5, 2, Q("0.0685 in")))
sketch8.addConstraint(Sketcher.Constraint("DistanceY", 1, 2, 1, 1, Q("14.9383 mm")))
pocket3 = body.newObject("PartDesign::Pocket", "Pocket002")
pocket3.Profile = sketch8
pocket3.Length = Q("1 in")

# Sketch on XY plane
sketch9 = body.newObject("Sketcher::SketchObject", "Sketch008")
sketch9.AttachmentSupport = (doc.getObject("XY_Plane"), [""])
sketch9.MapMode = "FlatFace"
add_polygon(sketch9, [(0, 21.9), (0, 13.1), (3.7, 13.1), (3.7, 13.9), (3.2, 13.9), (3.2, 21.9)])  # lines 0-5
sketch9.addConstraint(Sketcher.Constraint("Vertical", 0))
sketch9.addConstraint(Sketcher.Constraint("Horizontal", 1))
sketch9.addConstraint(Sketcher.Constraint("Vertical", 2))
sketch9.addConstraint(Sketcher.Constraint("Horizontal", 3))
sketch9.addConstraint(Sketcher.Constraint("Vertical", 4))
sketch9.addConstraint(Sketcher.Constraint("Horizontal", 5))
sketch9.addConstraint(Sketcher.Constraint("PointOnObject", 0, 2, -2))
sketch9.addConstraint(Sketcher.Constraint("DistanceX", 3, 2, 3, 1, Q("0.02 in")))
sketch9.addConstraint(Sketcher.Constraint("DistanceY", 0, 2, 0, 1, Q("0.35 in")))
sketch9.addConstraint(Sketcher.Constraint("DistanceX", 1, 1, 1, 2, Q("0.145 in")))
sketch9.addConstraint(Sketcher.Constraint("DistanceY", 2, 1, 2, 2, Q("0.035 in")))
sketch9.addConstraint(Sketcher.Constraint("DistanceY", -1, 1, 0, 2, Q("0.514 in")))
revolution3 = body.newObject("PartDesign::Revolution", "Revolution002")
revolution3.Profile = sketch9
revolution3.ReferenceAxis = (sketch9, ["V_Axis"])
revolution3.Angle = 360

# Sketch on XY plane
sketch10 = body.newObject("Sketcher::SketchObject", "Sketch009")
sketch10.AttachmentSupport = (doc.getObject("XY_Plane"), [""])
sketch10.MapMode = "FlatFace"
add_polygon(sketch10, [(0, 21.9), (0, 20.7), (2.2, 20.7), (2.2, 21.9)])  # lines 0-3
sketch10.addConstraint(Sketcher.Constraint("Vertical", 0))
sketch10.addConstraint(Sketcher.Constraint("Horizontal", 1))
sketch10.addConstraint(Sketcher.Constraint("Vertical", 2))
sketch10.addConstraint(Sketcher.Constraint("Horizontal", 3))
sketch10.addConstraint(Sketcher.Constraint("PointOnObject", 0, 2, -2))
sketch10.addConstraint(Sketcher.Constraint("DistanceY", 0, 2, 0, 1, Q("0.05 in")))
sketch10.addConstraint(Sketcher.Constraint("DistanceX", 1, 1, 1, 2, Q("0.085 in")))
sketch10.addConstraint(Sketcher.Constraint("DistanceY", -1, 1, 0, 2, Q("0.814 in")))
groove = body.newObject("PartDesign::Groove", "Groove")
groove.Profile = sketch10
groove.ReferenceAxis = (sketch10, ["V_Axis"])
groove.Angle = 360

# Sketch on XZ plane
sketch11 = body.newObject("Sketcher::SketchObject", "Sketch010")
sketch11.AttachmentSupport = (doc.getObject("XZ_Plane"), [""])
sketch11.MapMode = "FlatFace"
sketch11.AttachmentOffset = App.Placement(Vector(0, 0, -0.579 * 25.4), App.Rotation())
add_polygon(sketch11, [(-0.3, 2.7), (-0.3, 3.2), (0.3, 3.2), (0.3, 2.7)])  # lines 0-3
sketch11.addConstraint(Sketcher.Constraint("Vertical", 0))
sketch11.addConstraint(Sketcher.Constraint("Horizontal", 1))
sketch11.addConstraint(Sketcher.Constraint("Vertical", 2))
sketch11.addConstraint(Sketcher.Constraint("Horizontal", 3))
sketch11.addConstraint(Sketcher.Constraint("DistanceX", 1, 1, 1, 2, Q("0.02 in")))
sketch11.addConstraint(Sketcher.Constraint("DistanceX", 0, 2, -1, 1, Q("0.01 in")))
sketch11.addConstraint(Sketcher.Constraint("DistanceY", 0, 1, 0, 2, Q("0.0206 in")))
sketch11.addConstraint(Sketcher.Constraint("DistanceY", -1, 1, 0, 2, Q("0.125 in")))
pocket4 = body.newObject("PartDesign::Pocket", "Pocket003")
pocket4.Profile = sketch11
pocket4.Length = Q("0.8 in")

doc.recompute()
